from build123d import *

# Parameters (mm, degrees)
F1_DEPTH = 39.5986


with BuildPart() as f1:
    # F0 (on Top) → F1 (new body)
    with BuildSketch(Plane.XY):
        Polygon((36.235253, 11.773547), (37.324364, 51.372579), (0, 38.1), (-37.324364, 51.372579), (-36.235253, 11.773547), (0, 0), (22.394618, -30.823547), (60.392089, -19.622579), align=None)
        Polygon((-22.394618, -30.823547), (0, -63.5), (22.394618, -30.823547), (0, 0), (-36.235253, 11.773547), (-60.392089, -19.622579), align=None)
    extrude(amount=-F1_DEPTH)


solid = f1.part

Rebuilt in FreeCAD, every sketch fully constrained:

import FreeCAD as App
import Part
import Sketcher

V = App.Vector
Q = App.Units.Quantity


def add_polygon(sketch, points):
    """Adds a closed chain of lines whose ends are joined by coincident constraints."""
    first, n = sketch.GeometryCount, len(points)
    for a, b in zip(points, points[1:] + points[:1]):
        sketch.addGeometry(Part.LineSegment(App.Vector(*a, 0), App.Vector(*b, 0)), False)
    for i in range(n):
        sketch.addConstraint(Sketcher.Constraint("Coincident", first + i, 2, first + (i + 1) % n, 1))

doc = App.newDocument("Part")
body = doc.addObject("PartDesign::Body", "Body")

# Sketch on XY plane
sketch1 = body.newObject("Sketcher::SketchObject", "Sketch")
sketch1.AttachmentSupport = (doc.getObject("XY_Plane"), [""])
sketch1.MapMode = "FlatFace"
add_polygon(sketch1, [(36, 12), (37, 51), (0, 38), (-37, 51), (-36, 12), (-60, -20), (-22, -31), (0, -64), (22, -31), (60, -20)])  # lines 0-9
sketch1.addConstraint(Sketcher.Constraint("Symmetric", 0, 2, 2, 2, -2))
sketch1.addConstraint(Sketcher.Constraint("Symmetric", 5, 2, 7, 2, -2))
sketch1.addConstraint(Sketcher.Constraint("Symmetric", 4, 2, 8, 2, -2))
sketch1.addConstraint(Sketcher.Constraint("Symmetric", 3, 2, 9, 2, -2))
sketch1.addConstraint(Sketcher.Constraint("PointOnObject", 1, 2, -2))
sketch1.addConstraint(Sketcher.Constraint("PointOnObject", 6, 2, -2))
sketch1.addConstraint(Sketcher.Constraint("Equal", 0, 1))
sketch1.addConstraint(Sketcher.Constraint("Equal", 3, 4))
sketch1.addConstraint(Sketcher.Constraint("Equal", 4, 5))
sketch1.addConstraint(Sketcher.Constraint("Equal", 5, 6))
sketch1.addConstraint(Sketcher.Constraint("DistanceY", 6, 2, 1, 2, Q("4 in")))
sketch1.addConstraint(Sketcher.Constraint("DistanceY", -1, 1, 1, 2, Q("1.5 in")))
sketch1.addConstraint(Sketcher.Constraint("DistanceY", -1, 1, 0, 2, Q("51.372579 mm")))
sketch1.addConstraint(Sketcher.Constraint("DistanceX", 4, 2, -1, 1, Q("60.392089 mm")))
sketch1.addConstraint(Sketcher.Constraint("DistanceY", 4, 2, -1, 1, Q("19.622579 mm")))
sketch1.addConstraint(Sketcher.Constraint("DistanceX", 5, 2, -1, 1, Q("22.394618 mm")))
pad1 = body.newObject("PartDesign::Pad", "Pad")
pad1.Profile = sketch1
pad1.Length = Q("1.559 in")
pad1.Reversed = True

doc.recompute()
